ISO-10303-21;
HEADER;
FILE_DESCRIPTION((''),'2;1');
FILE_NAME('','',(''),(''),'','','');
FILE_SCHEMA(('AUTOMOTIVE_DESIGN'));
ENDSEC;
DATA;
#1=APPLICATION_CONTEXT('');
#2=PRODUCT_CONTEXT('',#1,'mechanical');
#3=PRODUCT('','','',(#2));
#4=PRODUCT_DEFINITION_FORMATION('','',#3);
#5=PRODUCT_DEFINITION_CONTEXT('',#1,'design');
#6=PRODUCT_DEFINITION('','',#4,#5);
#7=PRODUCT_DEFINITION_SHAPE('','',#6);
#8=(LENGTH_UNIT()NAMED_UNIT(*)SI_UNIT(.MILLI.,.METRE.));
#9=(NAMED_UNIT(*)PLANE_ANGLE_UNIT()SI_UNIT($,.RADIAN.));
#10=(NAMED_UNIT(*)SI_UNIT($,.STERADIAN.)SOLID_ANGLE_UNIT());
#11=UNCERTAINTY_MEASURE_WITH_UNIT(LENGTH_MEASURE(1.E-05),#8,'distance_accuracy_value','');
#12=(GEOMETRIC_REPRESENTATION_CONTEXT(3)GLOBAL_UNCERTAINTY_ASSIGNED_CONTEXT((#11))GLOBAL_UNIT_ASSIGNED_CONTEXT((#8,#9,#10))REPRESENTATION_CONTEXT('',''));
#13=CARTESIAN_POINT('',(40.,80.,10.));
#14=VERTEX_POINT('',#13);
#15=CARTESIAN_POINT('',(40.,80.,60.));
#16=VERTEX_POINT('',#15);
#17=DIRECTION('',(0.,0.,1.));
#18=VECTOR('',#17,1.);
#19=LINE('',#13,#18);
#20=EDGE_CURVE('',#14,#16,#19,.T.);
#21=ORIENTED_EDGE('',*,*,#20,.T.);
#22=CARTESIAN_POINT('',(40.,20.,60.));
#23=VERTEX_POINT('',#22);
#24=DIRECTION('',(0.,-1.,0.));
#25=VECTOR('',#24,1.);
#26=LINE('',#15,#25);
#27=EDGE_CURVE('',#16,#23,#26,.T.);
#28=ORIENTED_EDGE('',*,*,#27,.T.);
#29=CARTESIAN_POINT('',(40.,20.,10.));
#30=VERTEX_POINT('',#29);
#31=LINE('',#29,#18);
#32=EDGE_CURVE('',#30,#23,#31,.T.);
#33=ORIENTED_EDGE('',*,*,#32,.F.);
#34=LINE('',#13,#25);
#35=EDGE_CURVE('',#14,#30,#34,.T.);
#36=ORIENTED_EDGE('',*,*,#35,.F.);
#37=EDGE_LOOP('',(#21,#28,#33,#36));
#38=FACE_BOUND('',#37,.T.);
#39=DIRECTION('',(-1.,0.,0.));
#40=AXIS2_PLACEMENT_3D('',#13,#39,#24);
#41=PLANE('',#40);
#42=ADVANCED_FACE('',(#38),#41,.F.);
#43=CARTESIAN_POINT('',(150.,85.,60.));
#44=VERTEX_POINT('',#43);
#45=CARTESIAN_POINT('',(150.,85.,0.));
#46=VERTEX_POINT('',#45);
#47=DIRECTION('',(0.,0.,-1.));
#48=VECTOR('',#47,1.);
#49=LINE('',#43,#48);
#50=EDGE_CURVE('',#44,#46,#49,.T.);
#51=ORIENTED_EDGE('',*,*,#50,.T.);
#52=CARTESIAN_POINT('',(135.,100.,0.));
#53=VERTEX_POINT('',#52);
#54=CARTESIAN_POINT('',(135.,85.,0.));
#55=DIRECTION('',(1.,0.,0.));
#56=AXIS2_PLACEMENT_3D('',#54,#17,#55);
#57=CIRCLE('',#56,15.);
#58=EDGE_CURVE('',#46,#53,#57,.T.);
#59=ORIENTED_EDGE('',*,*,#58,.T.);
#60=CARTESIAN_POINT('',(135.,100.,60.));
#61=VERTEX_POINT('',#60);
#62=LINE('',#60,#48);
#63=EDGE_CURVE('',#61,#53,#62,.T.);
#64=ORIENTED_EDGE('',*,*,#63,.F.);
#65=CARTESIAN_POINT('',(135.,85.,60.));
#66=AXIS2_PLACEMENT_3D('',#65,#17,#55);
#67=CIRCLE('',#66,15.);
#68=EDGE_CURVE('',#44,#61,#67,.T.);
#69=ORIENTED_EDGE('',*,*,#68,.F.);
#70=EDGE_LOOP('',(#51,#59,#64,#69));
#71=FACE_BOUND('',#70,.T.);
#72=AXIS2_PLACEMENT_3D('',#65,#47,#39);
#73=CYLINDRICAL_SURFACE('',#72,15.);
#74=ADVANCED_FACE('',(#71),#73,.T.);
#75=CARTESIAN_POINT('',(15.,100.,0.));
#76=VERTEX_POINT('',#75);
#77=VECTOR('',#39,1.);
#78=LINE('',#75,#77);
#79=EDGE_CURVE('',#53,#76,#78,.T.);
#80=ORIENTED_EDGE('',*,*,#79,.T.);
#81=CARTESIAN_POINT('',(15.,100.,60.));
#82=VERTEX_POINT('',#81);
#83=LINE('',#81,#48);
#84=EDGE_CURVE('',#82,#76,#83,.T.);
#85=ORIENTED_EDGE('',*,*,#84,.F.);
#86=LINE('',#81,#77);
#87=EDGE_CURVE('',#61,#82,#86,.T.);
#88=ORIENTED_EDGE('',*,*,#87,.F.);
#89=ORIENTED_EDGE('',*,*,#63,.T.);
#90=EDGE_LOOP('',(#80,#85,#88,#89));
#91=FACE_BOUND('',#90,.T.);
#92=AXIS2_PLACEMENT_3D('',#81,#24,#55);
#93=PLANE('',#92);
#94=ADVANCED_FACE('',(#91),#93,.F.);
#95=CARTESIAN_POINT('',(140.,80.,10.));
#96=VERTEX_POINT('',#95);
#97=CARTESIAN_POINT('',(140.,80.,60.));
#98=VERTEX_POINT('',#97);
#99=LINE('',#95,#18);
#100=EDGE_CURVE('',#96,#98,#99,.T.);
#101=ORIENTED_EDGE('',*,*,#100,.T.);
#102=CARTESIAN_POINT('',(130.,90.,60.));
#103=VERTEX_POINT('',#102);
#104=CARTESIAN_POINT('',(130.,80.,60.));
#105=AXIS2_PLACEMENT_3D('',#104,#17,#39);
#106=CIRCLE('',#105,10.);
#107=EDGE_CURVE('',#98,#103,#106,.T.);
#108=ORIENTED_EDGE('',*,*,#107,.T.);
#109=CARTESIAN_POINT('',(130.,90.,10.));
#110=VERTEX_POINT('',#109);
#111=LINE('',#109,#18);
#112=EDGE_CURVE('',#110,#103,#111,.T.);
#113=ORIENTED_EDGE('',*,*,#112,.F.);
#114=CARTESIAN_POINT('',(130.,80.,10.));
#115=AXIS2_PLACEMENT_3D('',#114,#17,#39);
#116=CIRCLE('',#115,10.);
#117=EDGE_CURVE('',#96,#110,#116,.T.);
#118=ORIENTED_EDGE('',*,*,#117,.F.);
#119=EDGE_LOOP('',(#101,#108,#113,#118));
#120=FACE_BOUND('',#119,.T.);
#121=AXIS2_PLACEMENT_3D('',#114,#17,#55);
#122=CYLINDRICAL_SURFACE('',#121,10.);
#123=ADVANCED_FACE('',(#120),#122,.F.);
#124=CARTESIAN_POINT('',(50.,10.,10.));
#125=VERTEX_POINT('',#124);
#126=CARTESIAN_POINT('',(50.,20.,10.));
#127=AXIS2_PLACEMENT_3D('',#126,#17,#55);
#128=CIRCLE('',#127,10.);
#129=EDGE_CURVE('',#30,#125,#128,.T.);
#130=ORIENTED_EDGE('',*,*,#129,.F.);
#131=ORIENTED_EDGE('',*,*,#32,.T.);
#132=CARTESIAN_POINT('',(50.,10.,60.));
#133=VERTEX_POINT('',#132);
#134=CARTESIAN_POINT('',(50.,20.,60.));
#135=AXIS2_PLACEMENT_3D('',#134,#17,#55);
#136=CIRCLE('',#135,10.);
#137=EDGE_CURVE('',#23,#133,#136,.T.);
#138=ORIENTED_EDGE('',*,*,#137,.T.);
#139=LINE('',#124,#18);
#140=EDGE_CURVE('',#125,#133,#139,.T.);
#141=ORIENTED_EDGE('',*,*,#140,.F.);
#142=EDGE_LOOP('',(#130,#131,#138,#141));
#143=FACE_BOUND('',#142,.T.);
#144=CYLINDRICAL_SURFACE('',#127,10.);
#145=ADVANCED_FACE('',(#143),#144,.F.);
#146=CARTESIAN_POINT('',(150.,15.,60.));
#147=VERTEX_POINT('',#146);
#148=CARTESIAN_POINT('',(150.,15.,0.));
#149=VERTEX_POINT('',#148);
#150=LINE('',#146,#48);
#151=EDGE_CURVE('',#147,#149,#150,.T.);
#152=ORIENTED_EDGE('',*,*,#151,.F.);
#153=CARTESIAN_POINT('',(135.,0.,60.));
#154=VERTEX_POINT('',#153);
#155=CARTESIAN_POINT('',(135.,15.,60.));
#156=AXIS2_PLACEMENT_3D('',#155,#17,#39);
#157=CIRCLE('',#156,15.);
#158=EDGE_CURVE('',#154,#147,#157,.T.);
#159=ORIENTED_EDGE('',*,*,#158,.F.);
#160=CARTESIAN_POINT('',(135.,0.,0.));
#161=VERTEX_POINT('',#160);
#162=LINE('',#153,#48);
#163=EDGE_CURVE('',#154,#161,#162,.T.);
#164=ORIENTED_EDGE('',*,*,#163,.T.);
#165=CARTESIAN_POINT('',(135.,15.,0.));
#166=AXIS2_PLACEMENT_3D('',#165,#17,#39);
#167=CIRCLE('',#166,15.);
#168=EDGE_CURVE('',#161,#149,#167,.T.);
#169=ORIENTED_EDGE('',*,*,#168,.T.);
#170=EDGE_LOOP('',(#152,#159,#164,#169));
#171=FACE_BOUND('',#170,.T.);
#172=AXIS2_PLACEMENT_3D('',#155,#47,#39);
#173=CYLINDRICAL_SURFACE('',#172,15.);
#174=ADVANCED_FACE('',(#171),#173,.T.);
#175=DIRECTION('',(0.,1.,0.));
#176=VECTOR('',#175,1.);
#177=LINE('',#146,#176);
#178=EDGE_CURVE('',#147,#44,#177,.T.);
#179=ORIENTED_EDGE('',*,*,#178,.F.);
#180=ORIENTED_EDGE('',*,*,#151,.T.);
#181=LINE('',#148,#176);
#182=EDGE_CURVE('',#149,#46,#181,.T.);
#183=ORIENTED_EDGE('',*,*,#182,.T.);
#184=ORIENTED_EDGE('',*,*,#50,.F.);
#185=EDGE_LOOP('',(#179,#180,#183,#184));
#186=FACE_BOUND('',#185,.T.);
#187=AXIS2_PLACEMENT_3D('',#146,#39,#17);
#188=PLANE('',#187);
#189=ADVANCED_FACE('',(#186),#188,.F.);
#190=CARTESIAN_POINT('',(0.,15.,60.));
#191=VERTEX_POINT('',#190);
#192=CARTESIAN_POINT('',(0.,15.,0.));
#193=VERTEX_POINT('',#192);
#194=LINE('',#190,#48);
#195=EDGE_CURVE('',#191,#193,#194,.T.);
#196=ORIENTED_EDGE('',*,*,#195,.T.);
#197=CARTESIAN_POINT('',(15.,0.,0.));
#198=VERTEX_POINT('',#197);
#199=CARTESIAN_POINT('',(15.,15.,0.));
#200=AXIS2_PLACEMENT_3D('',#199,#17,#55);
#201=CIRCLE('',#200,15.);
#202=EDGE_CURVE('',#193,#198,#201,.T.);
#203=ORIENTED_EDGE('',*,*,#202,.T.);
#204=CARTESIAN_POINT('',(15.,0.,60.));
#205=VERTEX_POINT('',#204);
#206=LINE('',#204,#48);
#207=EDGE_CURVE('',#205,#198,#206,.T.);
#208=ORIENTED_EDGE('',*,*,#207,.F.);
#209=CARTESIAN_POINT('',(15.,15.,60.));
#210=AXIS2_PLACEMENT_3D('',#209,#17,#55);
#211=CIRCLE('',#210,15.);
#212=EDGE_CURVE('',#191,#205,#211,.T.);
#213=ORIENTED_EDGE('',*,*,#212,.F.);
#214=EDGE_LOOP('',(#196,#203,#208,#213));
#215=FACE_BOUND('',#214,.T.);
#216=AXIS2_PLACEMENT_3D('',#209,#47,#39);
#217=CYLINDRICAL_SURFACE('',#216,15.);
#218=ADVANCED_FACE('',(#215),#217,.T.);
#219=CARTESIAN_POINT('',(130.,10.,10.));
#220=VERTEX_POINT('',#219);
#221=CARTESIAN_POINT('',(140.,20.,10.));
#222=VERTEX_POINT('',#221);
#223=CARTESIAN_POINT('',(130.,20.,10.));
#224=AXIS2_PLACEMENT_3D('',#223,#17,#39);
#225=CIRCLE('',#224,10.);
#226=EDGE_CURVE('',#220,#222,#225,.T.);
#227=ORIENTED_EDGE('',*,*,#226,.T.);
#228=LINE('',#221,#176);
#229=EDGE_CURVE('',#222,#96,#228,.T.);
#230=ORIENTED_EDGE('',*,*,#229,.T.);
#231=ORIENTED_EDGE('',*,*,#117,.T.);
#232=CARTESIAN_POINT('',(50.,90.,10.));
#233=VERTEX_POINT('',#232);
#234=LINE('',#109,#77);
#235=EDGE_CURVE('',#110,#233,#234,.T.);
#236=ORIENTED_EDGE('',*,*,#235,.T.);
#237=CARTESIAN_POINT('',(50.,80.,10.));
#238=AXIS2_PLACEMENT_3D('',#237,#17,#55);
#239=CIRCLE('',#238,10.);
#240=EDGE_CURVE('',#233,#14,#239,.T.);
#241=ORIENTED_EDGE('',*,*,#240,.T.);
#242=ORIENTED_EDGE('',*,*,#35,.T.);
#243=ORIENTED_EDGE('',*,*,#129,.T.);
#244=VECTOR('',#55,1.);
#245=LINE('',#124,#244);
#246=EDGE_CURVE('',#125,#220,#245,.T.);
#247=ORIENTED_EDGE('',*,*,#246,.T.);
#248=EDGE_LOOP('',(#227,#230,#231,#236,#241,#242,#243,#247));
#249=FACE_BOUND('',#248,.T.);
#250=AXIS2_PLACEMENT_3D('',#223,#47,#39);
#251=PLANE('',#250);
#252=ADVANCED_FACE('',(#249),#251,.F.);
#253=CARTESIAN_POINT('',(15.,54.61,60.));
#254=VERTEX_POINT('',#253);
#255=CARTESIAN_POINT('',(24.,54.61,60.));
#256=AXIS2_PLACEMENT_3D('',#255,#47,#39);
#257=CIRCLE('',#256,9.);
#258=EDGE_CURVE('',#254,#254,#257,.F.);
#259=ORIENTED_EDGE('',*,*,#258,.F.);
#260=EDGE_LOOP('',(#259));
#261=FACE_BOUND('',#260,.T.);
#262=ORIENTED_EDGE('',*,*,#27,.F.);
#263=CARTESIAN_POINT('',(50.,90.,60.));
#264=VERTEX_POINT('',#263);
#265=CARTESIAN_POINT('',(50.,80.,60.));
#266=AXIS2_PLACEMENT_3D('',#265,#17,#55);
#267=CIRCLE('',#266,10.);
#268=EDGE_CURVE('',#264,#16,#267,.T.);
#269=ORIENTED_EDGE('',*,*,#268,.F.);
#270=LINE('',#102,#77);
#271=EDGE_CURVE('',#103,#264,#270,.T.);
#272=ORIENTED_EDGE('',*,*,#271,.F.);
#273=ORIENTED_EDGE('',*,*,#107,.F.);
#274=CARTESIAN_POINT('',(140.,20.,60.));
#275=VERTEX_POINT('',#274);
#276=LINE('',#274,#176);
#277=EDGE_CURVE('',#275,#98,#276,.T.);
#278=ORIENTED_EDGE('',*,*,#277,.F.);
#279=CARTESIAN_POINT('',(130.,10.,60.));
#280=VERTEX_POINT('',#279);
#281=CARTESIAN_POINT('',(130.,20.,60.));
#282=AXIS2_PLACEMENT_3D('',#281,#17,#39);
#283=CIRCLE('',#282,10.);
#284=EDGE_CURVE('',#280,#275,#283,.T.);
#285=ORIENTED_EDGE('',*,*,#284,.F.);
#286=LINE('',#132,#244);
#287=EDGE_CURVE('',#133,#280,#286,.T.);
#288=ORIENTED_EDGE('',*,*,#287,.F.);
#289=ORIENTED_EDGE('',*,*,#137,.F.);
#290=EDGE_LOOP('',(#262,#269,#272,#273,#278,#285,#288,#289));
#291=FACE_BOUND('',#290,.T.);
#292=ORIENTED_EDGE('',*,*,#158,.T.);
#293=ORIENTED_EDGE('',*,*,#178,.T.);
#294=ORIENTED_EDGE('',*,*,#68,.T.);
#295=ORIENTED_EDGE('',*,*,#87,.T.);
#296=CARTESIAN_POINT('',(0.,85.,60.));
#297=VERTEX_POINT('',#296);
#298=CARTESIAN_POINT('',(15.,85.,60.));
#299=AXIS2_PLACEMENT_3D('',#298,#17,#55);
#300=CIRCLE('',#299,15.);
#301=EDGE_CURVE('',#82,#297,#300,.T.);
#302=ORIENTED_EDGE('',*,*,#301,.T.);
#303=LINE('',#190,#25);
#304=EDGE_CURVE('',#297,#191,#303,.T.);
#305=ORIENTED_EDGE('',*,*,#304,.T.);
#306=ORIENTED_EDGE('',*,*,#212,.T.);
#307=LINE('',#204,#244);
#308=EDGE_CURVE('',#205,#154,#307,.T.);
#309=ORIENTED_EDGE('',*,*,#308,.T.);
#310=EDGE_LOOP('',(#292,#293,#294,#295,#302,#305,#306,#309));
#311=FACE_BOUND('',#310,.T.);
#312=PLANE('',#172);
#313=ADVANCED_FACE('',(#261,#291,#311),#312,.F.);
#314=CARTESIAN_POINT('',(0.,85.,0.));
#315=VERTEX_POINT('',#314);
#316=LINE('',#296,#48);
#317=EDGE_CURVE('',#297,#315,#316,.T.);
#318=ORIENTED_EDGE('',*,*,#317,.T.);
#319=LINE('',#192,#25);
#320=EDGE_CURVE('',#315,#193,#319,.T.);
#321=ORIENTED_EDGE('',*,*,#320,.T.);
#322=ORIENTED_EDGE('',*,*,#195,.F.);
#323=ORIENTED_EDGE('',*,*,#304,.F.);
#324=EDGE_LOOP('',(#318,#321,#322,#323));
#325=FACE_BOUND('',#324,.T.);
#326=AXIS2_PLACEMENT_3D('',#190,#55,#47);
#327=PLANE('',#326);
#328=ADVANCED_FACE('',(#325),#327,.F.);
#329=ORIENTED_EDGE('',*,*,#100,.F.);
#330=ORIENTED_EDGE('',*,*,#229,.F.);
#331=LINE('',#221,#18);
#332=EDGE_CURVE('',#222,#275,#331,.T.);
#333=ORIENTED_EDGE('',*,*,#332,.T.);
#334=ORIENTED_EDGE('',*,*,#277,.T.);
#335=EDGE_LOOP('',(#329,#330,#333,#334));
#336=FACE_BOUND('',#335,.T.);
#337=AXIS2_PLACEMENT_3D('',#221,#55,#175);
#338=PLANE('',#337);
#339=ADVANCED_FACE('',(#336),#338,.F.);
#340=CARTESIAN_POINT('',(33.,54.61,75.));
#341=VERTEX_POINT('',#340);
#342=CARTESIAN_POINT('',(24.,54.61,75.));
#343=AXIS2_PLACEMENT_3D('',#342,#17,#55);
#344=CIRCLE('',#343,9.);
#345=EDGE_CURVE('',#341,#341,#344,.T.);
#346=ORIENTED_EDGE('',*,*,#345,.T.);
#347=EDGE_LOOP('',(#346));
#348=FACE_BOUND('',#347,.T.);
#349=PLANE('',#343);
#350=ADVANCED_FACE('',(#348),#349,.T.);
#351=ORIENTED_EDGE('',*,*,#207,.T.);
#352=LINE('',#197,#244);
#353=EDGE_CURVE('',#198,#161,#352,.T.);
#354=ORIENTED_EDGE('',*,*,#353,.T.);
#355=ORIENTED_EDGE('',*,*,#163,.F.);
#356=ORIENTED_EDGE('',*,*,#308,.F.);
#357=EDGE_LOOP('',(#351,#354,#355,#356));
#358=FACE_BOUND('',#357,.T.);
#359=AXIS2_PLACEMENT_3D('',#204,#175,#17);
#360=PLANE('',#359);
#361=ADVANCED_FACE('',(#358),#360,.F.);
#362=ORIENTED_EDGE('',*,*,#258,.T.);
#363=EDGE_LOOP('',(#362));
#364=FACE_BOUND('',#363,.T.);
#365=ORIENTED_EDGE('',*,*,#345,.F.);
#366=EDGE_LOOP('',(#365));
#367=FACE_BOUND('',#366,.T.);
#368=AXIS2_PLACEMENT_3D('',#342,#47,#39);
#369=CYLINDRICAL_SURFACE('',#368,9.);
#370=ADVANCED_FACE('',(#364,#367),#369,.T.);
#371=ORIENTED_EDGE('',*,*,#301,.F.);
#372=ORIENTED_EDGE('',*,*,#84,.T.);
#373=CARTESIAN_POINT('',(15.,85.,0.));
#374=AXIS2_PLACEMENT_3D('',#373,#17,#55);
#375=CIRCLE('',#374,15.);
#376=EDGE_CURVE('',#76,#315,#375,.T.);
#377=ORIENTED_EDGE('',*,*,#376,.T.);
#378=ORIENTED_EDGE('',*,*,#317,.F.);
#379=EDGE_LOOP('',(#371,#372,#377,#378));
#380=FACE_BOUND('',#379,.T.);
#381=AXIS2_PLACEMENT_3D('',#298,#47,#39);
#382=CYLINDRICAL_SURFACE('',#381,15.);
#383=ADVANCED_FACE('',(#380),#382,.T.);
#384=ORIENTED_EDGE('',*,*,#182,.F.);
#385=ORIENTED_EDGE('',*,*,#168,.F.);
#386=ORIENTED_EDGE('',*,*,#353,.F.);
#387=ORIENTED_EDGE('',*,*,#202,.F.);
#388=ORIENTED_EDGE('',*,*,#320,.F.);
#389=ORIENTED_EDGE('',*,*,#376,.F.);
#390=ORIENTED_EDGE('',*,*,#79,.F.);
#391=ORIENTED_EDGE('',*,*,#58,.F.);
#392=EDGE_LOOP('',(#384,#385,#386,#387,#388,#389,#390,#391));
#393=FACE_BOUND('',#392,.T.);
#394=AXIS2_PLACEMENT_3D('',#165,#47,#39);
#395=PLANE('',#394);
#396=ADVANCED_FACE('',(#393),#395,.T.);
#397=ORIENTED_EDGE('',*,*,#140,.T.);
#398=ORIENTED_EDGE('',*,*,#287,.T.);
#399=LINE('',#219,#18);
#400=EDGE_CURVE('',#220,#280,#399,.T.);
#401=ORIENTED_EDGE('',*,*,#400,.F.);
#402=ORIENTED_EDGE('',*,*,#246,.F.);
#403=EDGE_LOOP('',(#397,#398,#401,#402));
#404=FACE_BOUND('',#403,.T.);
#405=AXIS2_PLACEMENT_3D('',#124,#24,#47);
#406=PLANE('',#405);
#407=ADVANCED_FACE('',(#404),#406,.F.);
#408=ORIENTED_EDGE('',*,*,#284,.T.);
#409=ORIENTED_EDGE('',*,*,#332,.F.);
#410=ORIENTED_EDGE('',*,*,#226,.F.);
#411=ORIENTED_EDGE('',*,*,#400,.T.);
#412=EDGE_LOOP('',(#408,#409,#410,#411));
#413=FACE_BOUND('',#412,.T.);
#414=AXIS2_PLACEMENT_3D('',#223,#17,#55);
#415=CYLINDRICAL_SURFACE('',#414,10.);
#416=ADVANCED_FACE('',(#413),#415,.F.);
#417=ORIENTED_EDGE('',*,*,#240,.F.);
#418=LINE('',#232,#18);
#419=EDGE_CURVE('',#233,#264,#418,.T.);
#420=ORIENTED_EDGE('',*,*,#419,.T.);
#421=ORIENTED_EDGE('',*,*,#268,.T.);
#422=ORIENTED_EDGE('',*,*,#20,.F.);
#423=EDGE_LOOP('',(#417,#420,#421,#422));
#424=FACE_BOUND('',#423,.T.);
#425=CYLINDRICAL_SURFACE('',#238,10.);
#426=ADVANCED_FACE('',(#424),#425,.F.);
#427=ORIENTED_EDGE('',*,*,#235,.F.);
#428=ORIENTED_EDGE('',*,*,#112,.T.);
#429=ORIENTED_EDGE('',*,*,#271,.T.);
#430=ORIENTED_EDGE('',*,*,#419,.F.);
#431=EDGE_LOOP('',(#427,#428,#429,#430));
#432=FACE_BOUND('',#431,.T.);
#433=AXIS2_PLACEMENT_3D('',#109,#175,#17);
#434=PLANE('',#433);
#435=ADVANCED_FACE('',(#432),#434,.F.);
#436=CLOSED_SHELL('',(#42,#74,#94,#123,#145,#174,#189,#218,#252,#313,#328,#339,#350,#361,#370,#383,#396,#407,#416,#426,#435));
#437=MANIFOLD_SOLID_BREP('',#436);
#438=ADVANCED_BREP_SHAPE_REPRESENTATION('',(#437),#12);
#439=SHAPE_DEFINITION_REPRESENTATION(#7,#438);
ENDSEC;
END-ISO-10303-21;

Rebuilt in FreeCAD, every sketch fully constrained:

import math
import FreeCAD as App
import Part
import Sketcher

doc = App.newDocument("Part")
body = doc.addObject("PartDesign::Body", "Body")

sketch1 = body.newObject("Sketcher::SketchObject", "Sketch")
sketch1.AttachmentSupport = (doc.getObject("XY_Plane"), [""])
sketch1.MapMode = "FlatFace"
sketch1.addGeometry([
    Part.LineSegment(App.Vector(15, 0, 0), App.Vector(135, 0, 0)),
    Part.ArcOfCircle(Part.Circle(App.Vector(135, 15, 0), App.Vector(0, 0, 1), 15), math.radians(-90), math.radians(0)),
    Part.LineSegment(App.Vector(150, 15, 0), App.Vector(150, 85, 0)),
    Part.ArcOfCircle(Part.Circle(App.Vector(135, 85, 0), App.Vector(0, 0, 1), 15), math.radians(0), math.radians(90)),
    Part.LineSegment(App.Vector(135, 100, 0), App.Vector(15, 100, 0)),
    Part.ArcOfCircle(Part.Circle(App.Vector(15, 85, 0), App.Vector(0, 0, 1), 15), math.radians(90), math.radians(180)),
    Part.LineSegment(App.Vector(0, 85, 0), App.Vector(0, 15, 0)),
    Part.ArcOfCircle(Part.Circle(App.Vector(15, 15, 0), App.Vector(0, 0, 1), 15), math.radians(180), math.radians(270)),
], False)
sketch1.addConstraint([
    Sketcher.Constraint("Tangent", 0, 2, 1, 1),
    Sketcher.Constraint("Tangent", 1, 2, 2, 1),
    Sketcher.Constraint("Tangent", 2, 2, 3, 1),
    Sketcher.Constraint("Tangent", 3, 2, 4, 1),
    Sketcher.Constraint("Tangent", 4, 2, 5, 1),
    Sketcher.Constraint("Tangent", 5, 2, 6, 1),
    Sketcher.Constraint("Tangent", 6, 2, 7, 1),
    Sketcher.Constraint("Tangent", 7, 2, 0, 1),
    Sketcher.Constraint("Horizontal", 0),
    Sketcher.Constraint("Vertical", 2),
    Sketcher.Constraint("Horizontal", 4),
    Sketcher.Constraint("Vertical", 6),
    Sketcher.Constraint("Equal", 1, 3),
    Sketcher.Constraint("Equal", 3, 5),
    Sketcher.Constraint("Equal", 5, 7),
    Sketcher.Constraint("PointOnObject", 0, 2, -1),
    Sketcher.Constraint("PointOnObject", 5, 2, -2),
    Sketcher.Constraint("Radius", 1, 15.0),
    Sketcher.Constraint("DistanceX", 0, 1, 0, 2, 120.0),
    Sketcher.Constraint("DistanceY", 2, 1, 2, 2, 70.0),
])
pad1 = body.newObject("PartDesign::Pad", "Pad")
pad1.Profile = sketch1
pad1.Length = 60

sketch2 = body.newObject("Sketcher::SketchObject", "Sketch001")
sketch2.AttachmentSupport = (doc.getObject("XY_Plane"), [""])
sketch2.MapMode = "FlatFace"
sketch2.AttachmentOffset = App.Placement(App.Vector(0, 0, 60), App.Rotation())
sketch2.addGeometry([
    Part.LineSegment(App.Vector(40, 80, 0), App.Vector(40, 20, 0)),
    Part.ArcOfCircle(Part.Circle(App.Vector(50, 20, 0), App.Vector(0, 0, 1), 10), math.radians(180), math.radians(270)),
    Part.LineSegment(App.Vector(50, 10, 0), App.Vector(130, 10, 0)),
    Part.ArcOfCircle(Part.Circle(App.Vector(130, 20, 0), App.Vector(0, 0, 1), 10), math.radians(-90), math.radians(0)),
    Part.LineSegment(App.Vector(140, 20, 0), App.Vector(140, 80, 0)),
    Part.ArcOfCircle(Part.Circle(App.Vector(130, 80, 0), App.Vector(0, 0, 1), 10), math.radians(0), math.radians(90)),
    Part.LineSegment(App.Vector(130, 90, 0), App.Vector(50, 90, 0)),
    Part.ArcOfCircle(Part.Circle(App.Vector(50, 80, 0), App.Vector(0, 0, 1), 10), math.radians(90), math.radians(180)),
], False)
sketch2.addConstraint([
    Sketcher.Constraint("Tangent", 0, 2, 1, 1),
    Sketcher.Constraint("Tangent", 1, 2, 2, 1),
    Sketcher.Constraint("Tangent", 2, 2, 3, 1),
    Sketcher.Constraint("Tangent", 3, 2, 4, 1),
    Sketcher.Constraint("Tangent", 4, 2, 5, 1),
    Sketcher.Constraint("Tangent", 5, 2, 6, 1),
    Sketcher.Constraint("Tangent", 6, 2, 7, 1),
    Sketcher.Constraint("Tangent", 7, 2, 0, 1),
    Sketcher.Constraint("Vertical", 0),
    Sketcher.Constraint("Horizontal", 2),
    Sketcher.Constraint("Vertical", 4),
    Sketcher.Constraint("Horizontal", 6),
    Sketcher.Constraint("Equal", 1, 3),
    Sketcher.Constraint("Equal", 3, 5),
    Sketcher.Constraint("Equal", 5, 7),
    Sketcher.Constraint("Radius", 1, 10.0),
    Sketcher.Constraint("DistanceX", 2, 1, 2, 2, 80.0),
    Sketcher.Constraint("DistanceY", 0, 2, 0, 1, 60.0),
    Sketcher.Constraint("DistanceX", -1, 1, 1, 3, 50.0),
    Sketcher.Constraint("DistanceY", -1, 1, 1, 3, 20.0),
])
pocket1 = body.newObject("PartDesign::Pocket", "Pocket")
pocket1.Profile = sketch2
pocket1.Length = 50

sketch3 = body.newObject("Sketcher::SketchObject", "Sketch002")
sketch3.AttachmentSupport = (doc.getObject("XY_Plane"), [""])
sketch3.MapMode = "FlatFace"
sketch3.AttachmentOffset = App.Placement(App.Vector(0, 0, 60), App.Rotation())
sketch3.addGeometry(Part.Circle(App.Vector(24, 55, 0), App.Vector(0, 0, 1), 9), False)
sketch3.addConstraint([
    Sketcher.Constraint("Diameter", 0, 18.0),
    Sketcher.Constraint("DistanceX", -1, 1, 0, 3, 24.0),
    Sketcher.Constraint("DistanceY", -1, 1, 0, 3, 54.61),
])
pad2 = body.newObject("PartDesign::Pad", "Pad001")
pad2.Profile = sketch3
pad2.Length = 15

doc.recompute()
